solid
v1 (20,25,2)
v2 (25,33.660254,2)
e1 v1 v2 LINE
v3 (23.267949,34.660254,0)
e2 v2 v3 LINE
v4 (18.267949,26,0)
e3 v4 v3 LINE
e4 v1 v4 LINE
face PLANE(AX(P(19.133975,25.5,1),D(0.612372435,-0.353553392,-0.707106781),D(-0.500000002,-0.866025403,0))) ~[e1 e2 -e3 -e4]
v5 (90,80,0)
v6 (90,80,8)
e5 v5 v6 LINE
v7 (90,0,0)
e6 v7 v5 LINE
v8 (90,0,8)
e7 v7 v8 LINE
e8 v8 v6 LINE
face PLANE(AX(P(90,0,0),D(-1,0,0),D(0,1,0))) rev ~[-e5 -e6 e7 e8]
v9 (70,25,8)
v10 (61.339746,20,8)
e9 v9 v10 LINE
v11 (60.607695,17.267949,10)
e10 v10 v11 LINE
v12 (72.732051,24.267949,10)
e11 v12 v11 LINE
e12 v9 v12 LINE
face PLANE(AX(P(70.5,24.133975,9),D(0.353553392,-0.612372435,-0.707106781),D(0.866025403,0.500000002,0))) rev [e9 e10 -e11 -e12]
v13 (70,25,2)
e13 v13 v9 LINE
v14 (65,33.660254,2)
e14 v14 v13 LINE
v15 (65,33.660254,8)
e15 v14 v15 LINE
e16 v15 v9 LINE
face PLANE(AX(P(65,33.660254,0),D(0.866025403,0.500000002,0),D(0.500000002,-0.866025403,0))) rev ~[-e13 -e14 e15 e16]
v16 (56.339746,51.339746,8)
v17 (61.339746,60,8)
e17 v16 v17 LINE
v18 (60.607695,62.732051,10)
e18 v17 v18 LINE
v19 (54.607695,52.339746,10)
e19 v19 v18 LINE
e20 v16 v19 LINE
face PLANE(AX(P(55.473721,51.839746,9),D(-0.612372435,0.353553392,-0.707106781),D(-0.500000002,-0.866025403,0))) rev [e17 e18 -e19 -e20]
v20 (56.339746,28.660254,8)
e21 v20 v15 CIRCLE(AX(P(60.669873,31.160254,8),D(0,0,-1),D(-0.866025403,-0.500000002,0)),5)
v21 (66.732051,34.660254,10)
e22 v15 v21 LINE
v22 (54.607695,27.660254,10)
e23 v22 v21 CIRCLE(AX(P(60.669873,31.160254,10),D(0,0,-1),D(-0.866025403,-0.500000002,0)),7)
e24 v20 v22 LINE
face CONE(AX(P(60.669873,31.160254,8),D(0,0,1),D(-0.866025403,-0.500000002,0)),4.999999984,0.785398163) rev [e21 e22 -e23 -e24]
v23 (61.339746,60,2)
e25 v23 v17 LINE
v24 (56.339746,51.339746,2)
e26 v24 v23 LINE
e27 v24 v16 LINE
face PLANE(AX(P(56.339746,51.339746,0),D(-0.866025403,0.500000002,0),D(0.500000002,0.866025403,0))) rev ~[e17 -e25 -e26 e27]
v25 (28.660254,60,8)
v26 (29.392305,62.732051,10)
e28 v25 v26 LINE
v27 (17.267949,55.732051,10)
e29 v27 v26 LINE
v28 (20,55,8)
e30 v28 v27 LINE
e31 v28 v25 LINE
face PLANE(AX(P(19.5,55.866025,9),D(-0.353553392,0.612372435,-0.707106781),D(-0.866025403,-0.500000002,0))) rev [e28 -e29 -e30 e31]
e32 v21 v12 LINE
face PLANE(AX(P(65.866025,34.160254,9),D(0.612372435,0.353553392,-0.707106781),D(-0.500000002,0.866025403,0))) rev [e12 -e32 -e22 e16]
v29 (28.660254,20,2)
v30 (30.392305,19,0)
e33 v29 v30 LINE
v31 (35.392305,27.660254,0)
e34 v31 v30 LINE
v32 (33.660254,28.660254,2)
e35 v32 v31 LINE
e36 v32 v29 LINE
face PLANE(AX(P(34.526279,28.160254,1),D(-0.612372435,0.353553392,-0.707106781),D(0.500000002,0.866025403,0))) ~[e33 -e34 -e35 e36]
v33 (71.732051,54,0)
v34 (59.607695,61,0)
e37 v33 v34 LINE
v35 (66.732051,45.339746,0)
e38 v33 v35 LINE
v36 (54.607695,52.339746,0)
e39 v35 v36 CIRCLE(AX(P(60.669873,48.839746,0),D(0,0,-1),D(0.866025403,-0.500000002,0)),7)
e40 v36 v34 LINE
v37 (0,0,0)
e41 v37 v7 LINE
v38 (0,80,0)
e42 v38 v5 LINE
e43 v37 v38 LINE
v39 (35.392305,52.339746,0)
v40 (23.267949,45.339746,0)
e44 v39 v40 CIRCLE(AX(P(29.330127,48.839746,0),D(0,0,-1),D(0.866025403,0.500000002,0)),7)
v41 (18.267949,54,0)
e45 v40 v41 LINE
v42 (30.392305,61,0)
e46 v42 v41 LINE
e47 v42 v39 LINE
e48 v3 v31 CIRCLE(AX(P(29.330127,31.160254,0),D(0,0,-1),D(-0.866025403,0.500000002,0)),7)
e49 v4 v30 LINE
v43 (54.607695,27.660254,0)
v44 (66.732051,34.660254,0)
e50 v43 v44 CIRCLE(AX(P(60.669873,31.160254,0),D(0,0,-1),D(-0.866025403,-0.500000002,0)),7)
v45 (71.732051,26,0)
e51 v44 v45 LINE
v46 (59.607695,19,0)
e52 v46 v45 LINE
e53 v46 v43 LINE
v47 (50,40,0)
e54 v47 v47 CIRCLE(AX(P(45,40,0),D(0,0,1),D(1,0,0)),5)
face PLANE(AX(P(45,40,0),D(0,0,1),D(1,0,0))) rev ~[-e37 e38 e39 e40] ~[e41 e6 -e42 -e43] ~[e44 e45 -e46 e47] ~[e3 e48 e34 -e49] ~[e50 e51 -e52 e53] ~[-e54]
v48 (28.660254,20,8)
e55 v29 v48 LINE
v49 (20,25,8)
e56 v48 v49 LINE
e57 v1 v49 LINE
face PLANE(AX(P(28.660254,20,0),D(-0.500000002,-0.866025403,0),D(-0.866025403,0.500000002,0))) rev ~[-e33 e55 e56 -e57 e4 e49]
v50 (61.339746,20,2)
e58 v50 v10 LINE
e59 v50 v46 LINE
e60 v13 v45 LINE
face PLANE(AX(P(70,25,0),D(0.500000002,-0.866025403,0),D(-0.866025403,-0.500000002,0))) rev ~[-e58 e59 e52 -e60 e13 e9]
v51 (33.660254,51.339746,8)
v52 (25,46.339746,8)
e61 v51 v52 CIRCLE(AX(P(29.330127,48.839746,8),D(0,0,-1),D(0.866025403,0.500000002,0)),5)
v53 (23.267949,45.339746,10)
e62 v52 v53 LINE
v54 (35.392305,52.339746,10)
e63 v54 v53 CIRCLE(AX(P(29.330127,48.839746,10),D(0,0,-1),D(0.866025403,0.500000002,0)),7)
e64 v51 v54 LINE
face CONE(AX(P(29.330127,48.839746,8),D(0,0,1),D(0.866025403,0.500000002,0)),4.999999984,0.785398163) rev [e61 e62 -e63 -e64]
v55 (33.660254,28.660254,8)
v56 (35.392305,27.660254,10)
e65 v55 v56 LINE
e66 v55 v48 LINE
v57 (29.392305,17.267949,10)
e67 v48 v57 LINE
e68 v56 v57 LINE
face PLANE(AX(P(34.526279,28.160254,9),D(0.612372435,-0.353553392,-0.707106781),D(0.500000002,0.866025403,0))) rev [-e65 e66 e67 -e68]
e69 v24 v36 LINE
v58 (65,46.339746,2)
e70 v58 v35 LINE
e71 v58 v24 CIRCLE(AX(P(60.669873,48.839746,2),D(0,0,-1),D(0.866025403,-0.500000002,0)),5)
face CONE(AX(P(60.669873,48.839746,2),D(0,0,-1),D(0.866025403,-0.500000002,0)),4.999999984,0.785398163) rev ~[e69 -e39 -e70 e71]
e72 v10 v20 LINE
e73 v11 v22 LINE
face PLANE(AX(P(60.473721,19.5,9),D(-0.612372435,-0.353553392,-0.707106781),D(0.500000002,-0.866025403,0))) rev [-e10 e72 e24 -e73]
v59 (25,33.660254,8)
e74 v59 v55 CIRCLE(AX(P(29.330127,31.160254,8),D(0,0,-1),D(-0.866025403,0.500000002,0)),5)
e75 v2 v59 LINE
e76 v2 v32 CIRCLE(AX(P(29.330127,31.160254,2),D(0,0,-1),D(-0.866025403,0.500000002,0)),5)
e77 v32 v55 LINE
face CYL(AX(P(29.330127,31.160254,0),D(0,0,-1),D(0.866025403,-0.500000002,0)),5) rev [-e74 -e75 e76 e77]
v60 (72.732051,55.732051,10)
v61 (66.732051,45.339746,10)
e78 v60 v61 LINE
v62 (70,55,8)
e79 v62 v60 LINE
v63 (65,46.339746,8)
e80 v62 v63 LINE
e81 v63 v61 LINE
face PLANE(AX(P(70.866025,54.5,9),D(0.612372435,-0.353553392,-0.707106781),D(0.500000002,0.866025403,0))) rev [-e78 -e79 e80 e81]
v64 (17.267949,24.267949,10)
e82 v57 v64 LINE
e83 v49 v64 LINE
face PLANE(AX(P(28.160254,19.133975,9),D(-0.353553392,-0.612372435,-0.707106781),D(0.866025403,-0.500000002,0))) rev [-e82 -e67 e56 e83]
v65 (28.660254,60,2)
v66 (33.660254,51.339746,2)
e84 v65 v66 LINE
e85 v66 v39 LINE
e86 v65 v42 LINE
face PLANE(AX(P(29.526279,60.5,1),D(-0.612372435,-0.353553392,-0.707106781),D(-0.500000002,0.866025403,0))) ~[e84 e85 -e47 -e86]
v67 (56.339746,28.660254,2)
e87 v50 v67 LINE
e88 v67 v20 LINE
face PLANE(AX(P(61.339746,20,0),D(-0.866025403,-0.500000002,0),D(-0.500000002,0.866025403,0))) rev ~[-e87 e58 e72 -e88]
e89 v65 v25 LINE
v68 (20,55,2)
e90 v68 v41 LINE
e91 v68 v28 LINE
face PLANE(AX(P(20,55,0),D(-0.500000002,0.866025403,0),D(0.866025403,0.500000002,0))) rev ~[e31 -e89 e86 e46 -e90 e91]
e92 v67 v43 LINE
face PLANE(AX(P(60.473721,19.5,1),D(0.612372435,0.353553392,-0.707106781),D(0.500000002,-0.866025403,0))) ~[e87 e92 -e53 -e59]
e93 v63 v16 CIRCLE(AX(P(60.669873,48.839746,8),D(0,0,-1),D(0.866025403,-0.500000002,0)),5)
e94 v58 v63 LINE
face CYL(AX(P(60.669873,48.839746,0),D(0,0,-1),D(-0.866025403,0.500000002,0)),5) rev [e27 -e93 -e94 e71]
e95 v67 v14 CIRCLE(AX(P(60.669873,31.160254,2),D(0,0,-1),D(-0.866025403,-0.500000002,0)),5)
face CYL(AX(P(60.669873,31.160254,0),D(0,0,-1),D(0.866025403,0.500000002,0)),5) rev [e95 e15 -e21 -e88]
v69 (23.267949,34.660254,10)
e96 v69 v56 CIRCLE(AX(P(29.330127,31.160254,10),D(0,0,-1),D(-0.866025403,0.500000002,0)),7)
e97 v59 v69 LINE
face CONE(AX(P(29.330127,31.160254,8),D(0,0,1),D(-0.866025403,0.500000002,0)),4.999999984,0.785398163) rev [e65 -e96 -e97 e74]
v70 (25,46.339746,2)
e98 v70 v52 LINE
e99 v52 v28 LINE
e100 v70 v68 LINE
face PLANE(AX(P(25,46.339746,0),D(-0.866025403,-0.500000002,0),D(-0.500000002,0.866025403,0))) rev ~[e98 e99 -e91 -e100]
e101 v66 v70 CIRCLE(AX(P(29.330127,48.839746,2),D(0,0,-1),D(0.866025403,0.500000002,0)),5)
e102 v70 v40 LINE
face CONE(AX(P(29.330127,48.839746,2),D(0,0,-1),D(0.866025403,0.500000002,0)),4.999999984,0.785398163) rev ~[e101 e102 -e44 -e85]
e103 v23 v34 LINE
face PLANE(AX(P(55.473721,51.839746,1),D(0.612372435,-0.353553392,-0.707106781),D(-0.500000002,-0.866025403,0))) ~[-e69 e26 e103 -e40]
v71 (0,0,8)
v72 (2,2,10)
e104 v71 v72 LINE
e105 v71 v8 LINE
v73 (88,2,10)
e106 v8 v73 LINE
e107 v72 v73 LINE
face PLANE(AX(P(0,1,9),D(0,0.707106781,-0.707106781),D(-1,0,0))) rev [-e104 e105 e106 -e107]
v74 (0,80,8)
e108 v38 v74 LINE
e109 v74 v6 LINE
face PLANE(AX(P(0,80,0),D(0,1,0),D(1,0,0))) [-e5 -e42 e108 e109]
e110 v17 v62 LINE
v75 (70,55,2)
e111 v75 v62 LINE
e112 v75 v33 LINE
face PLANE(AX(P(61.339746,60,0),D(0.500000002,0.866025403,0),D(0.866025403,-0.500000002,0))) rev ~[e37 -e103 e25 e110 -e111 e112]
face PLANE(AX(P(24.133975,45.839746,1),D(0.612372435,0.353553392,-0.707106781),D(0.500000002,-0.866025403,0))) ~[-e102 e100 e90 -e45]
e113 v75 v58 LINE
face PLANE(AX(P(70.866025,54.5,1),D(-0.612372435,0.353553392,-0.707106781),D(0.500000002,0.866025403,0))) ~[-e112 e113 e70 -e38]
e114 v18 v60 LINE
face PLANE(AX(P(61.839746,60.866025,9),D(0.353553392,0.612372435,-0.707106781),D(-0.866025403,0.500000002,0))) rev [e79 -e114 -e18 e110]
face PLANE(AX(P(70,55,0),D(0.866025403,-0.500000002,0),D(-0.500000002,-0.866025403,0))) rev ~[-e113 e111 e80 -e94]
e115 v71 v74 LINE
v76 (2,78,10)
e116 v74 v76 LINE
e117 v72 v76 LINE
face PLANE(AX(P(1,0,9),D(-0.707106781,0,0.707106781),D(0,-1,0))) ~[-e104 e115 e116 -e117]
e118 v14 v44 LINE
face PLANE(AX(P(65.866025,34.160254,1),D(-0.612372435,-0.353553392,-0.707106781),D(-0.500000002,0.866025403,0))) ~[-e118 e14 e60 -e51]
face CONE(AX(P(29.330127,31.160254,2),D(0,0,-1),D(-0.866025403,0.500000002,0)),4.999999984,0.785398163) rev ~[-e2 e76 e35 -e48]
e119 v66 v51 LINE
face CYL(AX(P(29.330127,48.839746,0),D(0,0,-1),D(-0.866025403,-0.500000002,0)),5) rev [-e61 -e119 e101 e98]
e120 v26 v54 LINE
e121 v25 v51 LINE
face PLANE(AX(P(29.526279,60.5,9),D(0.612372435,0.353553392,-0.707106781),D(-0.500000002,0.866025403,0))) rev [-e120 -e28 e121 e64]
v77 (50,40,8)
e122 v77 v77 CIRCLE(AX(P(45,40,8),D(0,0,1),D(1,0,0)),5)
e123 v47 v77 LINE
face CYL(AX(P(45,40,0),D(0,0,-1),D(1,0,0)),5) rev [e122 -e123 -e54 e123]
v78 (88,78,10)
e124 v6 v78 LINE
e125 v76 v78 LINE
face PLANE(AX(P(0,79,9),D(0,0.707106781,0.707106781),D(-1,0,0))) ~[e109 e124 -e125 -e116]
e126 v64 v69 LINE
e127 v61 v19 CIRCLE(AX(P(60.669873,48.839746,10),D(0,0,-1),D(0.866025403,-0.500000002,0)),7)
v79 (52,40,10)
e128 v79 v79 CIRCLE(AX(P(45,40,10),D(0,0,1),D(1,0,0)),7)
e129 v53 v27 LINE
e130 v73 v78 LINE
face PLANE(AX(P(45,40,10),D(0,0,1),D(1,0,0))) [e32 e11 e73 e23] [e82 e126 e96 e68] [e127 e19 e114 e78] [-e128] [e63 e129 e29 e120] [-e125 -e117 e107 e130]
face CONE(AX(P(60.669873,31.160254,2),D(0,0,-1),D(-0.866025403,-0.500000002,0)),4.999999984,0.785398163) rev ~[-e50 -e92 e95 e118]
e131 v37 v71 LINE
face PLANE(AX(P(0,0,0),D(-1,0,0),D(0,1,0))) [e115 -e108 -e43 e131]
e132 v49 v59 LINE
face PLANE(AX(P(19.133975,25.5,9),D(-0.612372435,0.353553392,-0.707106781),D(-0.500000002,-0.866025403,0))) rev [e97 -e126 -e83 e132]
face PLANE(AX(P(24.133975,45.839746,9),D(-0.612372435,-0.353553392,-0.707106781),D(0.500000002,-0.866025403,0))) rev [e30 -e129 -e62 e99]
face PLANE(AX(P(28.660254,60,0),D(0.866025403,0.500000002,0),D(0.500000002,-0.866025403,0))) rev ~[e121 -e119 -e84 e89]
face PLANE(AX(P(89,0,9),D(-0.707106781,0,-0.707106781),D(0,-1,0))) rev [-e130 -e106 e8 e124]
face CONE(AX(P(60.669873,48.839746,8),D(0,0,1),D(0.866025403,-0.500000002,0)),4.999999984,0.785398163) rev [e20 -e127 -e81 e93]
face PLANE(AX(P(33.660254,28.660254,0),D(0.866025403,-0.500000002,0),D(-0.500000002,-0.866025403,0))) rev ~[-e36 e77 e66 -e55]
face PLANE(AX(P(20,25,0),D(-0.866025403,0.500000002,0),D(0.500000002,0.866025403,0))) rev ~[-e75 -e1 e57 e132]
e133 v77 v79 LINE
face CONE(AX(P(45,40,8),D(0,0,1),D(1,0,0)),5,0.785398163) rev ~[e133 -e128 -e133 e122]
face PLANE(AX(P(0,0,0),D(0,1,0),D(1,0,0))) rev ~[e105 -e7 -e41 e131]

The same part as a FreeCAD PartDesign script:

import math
import FreeCAD as App
import Part
import Sketcher
Q = App.Units.Quantity


def edges_at(feature, points):
    """Names of the edges that pass closest to the given points."""
    edges = feature.Shape.Edges
    near = lambda p: min(range(len(edges)), key=lambda i: edges[i].distToShape(Part.Vertex(*p))[0])
    return sorted({f"Edge{near(p) + 1}" for p in points})

doc = App.newDocument("Part")
body = doc.addObject("PartDesign::Body", "Body")

sketch1 = doc.addObject("Sketcher::SketchObject", "Sketch")
body.addObject(sketch1)
sketch1.AttachmentSupport = (doc.XY_Plane, [""])
sketch1.MapMode = "FlatFace"
sketch1.addGeometry(Part.LineSegment(App.Vector(0, 80, 0), App.Vector(0, 0, 0)), False)
sketch1.addGeometry(Part.LineSegment(App.Vector(0, 0, 0), App.Vector(90, 0, 0)), False)
sketch1.addGeometry(Part.LineSegment(App.Vector(90, 0, 0), App.Vector(90, 80, 0)), False)
sketch1.addGeometry(Part.LineSegment(App.Vector(90, 80, 0), App.Vector(0, 80, 0)), False)
sketch1.addGeometry(Part.LineSegment(App.Vector(28.7, 20, 0), App.Vector(20, 25, 0)), False)
sketch1.addGeometry(Part.LineSegment(App.Vector(20, 25, 0), App.Vector(25, 33.7, 0)), False)
sketch1.addGeometry(Part.ArcOfCircle(Part.Circle(App.Vector(29.3, 31.2, 0), App.Vector(0, 0, 1), 5), math.radians(-30), math.radians(150)), False)
sketch1.addGeometry(Part.LineSegment(App.Vector(33.7, 28.7, 0), App.Vector(28.7, 20, 0)), False)
sketch1.addGeometry(Part.ArcOfCircle(Part.Circle(App.Vector(60.7, 31.2, 0), App.Vector(0, 0, 1), 5), math.radians(30), math.radians(210)), False)
sketch1.addGeometry(Part.LineSegment(App.Vector(65, 33.7, 0), App.Vector(70, 25, 0)), False)
sketch1.addGeometry(Part.LineSegment(App.Vector(70, 25, 0), App.Vector(61.3, 20, 0)), False)
sketch1.addGeometry(Part.LineSegment(App.Vector(61.3, 20, 0), App.Vector(56.3, 28.7, 0)), False)
sketch1.addGeometry(Part.LineSegment(App.Vector(20, 55, 0), App.Vector(28.7, 60, 0)), False)
sketch1.addGeometry(Part.LineSegment(App.Vector(28.7, 60, 0), App.Vector(33.7, 51.3, 0)), False)
sketch1.addGeometry(Part.ArcOfCircle(Part.Circle(App.Vector(29.3, 48.8, 0), App.Vector(0, 0, 1), 5), math.radians(-150), math.radians(30)), False)
sketch1.addGeometry(Part.LineSegment(App.Vector(25, 46.3, 0), App.Vector(20, 55, 0)), False)
sketch1.addGeometry(Part.Circle(App.Vector(45, 40, 0), App.Vector(0, 0, 1), 5), False)
sketch1.addGeometry(Part.ArcOfCircle(Part.Circle(App.Vector(60.7, 48.8, 0), App.Vector(0, 0, 1), 5), math.radians(150), math.radians(330)), False)
sketch1.addGeometry(Part.LineSegment(App.Vector(56.3, 51.3, 0), App.Vector(61.3, 60, 0)), False)
sketch1.addGeometry(Part.LineSegment(App.Vector(61.3, 60, 0), App.Vector(70, 55, 0)), False)
sketch1.addGeometry(Part.LineSegment(App.Vector(70, 55, 0), App.Vector(65, 46.3, 0)), False)
sketch1.addConstraint(Sketcher.Constraint("Coincident", 0, 2, 1, 1))
sketch1.addConstraint(Sketcher.Constraint("Coincident", 1, 2, 2, 1))
sketch1.addConstraint(Sketcher.Constraint("Coincident", 2, 2, 3, 1))
sketch1.addConstraint(Sketcher.Constraint("Coincident", 3, 2, 0, 1))
sketch1.addConstraint(Sketcher.Constraint("Coincident", 4, 2, 5, 1))
sketch1.addConstraint(Sketcher.Constraint("Tangent", 5, 2, 6, 2))
sketch1.addConstraint(Sketcher.Constraint("Tangent", 6, 1, 7, 1))
sketch1.addConstraint(Sketcher.Constraint("Coincident", 7, 2, 4, 1))
sketch1.addConstraint(Sketcher.Constraint("Tangent", 8, 1, 9, 1))
sketch1.addConstraint(Sketcher.Constraint("Coincident", 9, 2, 10, 1))
sketch1.addConstraint(Sketcher.Constraint("Coincident", 10, 2, 11, 1))
sketch1.addConstraint(Sketcher.Constraint("Tangent", 11, 2, 8, 2))
sketch1.addConstraint(Sketcher.Constraint("Coincident", 12, 2, 13, 1))
sketch1.addConstraint(Sketcher.Constraint("Tangent", 13, 2, 14, 2))
sketch1.addConstraint(Sketcher.Constraint("Tangent", 14, 1, 15, 1))
sketch1.addConstraint(Sketcher.Constraint("Coincident", 15, 2, 12, 1))
sketch1.addConstraint(Sketcher.Constraint("Tangent", 17, 1, 18, 1))
sketch1.addConstraint(Sketcher.Constraint("Coincident", 18, 2, 19, 1))
sketch1.addConstraint(Sketcher.Constraint("Coincident", 19, 2, 20, 1))
sketch1.addConstraint(Sketcher.Constraint("Tangent", 20, 2, 17, 2))
sketch1.addConstraint(Sketcher.Constraint("Vertical", 0))
sketch1.addConstraint(Sketcher.Constraint("Horizontal", 1))
sketch1.addConstraint(Sketcher.Constraint("Vertical", 2))
sketch1.addConstraint(Sketcher.Constraint("Horizontal", 3))
sketch1.addConstraint(Sketcher.Constraint("Coincident", 0, 2, -1, 1))
sketch1.addConstraint(Sketcher.Constraint("Equal", 6, 8))
sketch1.addConstraint(Sketcher.Constraint("Equal", 8, 14))
sketch1.addConstraint(Sketcher.Constraint("Equal", 14, 16))
sketch1.addConstraint(Sketcher.Constraint("Equal", 16, 17))
sketch1.addConstraint(Sketcher.Constraint("Perpendicular", 4, 5))
sketch1.addConstraint(Sketcher.Constraint("Parallel", 5, 7))
sketch1.addConstraint(Sketcher.Constraint("Perpendicular", 9, 10))
sketch1.addConstraint(Sketcher.Constraint("Perpendicular", 10, 11))
sketch1.addConstraint(Sketcher.Constraint("Perpendicular", 11, 12))
sketch1.addConstraint(Sketcher.Constraint("Perpendicular", 12, 13))
sketch1.addConstraint(Sketcher.Constraint("Parallel", 13, 15))
sketch1.addConstraint(Sketcher.Constraint("Parallel", 7, 18))
sketch1.addConstraint(Sketcher.Constraint("Perpendicular", 18, 19))
sketch1.addConstraint(Sketcher.Constraint("Perpendicular", 19, 20))
sketch1.addConstraint(Sketcher.Constraint("Horizontal", 6, 3, 8, 3))
sketch1.addConstraint(Sketcher.Constraint("Horizontal", 14, 3, 17, 3))
sketch1.addConstraint(Sketcher.Constraint("Horizontal", 5, 2, 8, 1))
sketch1.addConstraint(Sketcher.Constraint("Horizontal", 4, 2, 9, 2))
sketch1.addConstraint(Sketcher.Constraint("Horizontal", 12, 2, 18, 2))
sketch1.addConstraint(Sketcher.Constraint("Vertical", 6, 3, 14, 3))
sketch1.addConstraint(Sketcher.Constraint("Vertical", 8, 3, 17, 3))
sketch1.addConstraint(Sketcher.Constraint("Vertical", 7, 2, 12, 2))
sketch1.addConstraint(Sketcher.Constraint("Equal", 4, 5))
sketch1.addConstraint(Sketcher.Constraint("Diameter", 16, 10.0))
sketch1.addConstraint(Sketcher.Constraint("DistanceX", 1, 1, 1, 2, 90.0))
sketch1.addConstraint(Sketcher.Constraint("DistanceY", 0, 2, 0, 1, 80.0))
sketch1.addConstraint(Sketcher.Constraint("Angle", 4, Q("150 deg")))
sketch1.addConstraint(Sketcher.Constraint("DistanceX", -1, 1, 16, 3, 45.0))
sketch1.addConstraint(Sketcher.Constraint("DistanceY", -1, 1, 16, 3, 40.0))
sketch1.addConstraint(Sketcher.Constraint("DistanceX", -1, 1, 4, 2, 20.0))
sketch1.addConstraint(Sketcher.Constraint("DistanceY", -1, 1, 4, 2, 25.0))
sketch1.addConstraint(Sketcher.Constraint("DistanceX", -1, 1, 8, 1, 65.0))
sketch1.addConstraint(Sketcher.Constraint("DistanceY", -1, 1, 12, 2, 60.0))
pad1 = doc.addObject("PartDesign::Pad", "Pad")
body.addObject(pad1)
pad1.Profile = sketch1
pad1.Length = 10
doc.recompute()

chamfer = doc.addObject("PartDesign::Chamfer", "Chamfer")
body.addObject(chamfer)
chamfer.Base = (pad1, edges_at(pad1, [
    (45, 0, 10),
    (90, 40, 10),
    (45, 80, 10),
    (0, 40, 10),
    (31.16, 24.33, 0),
    (24.33, 22.5, 10),
    (22.5, 29.33, 10),
    (65, 33.66, 5),
    (67.5, 29.33, 0),
    (65.67, 22.5, 10),
    (58.84, 24.33, 10),
    (56.34, 51.34, 5),
    (58.84, 55.67, 0),
    (65.67, 57.5, 10),
    (67.5, 50.67, 10),
    (25, 46.34, 5),
    (22.5, 50.67, 0),
    (24.33, 57.5, 10),
    (31.16, 55.67, 10),
    (50, 40, 5),
    (40, 40, 10),
]))
chamfer.Size = 2

doc.recompute()
